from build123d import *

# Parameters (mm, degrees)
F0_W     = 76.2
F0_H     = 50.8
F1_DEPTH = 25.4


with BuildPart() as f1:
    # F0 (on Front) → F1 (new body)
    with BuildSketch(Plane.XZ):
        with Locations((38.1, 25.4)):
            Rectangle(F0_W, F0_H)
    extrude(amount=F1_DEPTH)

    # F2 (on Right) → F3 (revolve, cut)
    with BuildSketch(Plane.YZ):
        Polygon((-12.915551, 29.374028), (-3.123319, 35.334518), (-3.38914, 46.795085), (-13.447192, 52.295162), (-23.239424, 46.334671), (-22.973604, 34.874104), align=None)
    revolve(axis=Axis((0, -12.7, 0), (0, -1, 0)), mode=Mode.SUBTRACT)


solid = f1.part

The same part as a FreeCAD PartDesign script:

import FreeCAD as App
import Part
import Sketcher
Q = App.Units.Quantity

doc = App.newDocument("Part")
body = doc.addObject("PartDesign::Body", "Body")

# Sketch on XZ plane
sketch1 = body.newObject("Sketcher::SketchObject", "Sketch")
sketch1.AttachmentSupport = (doc.getObject("XZ_Plane"), [""])
sketch1.MapMode = "FlatFace"
sketch1.addGeometry([
    Part.LineSegment(App.Vector(0, 51, 0), App.Vector(0, 0, 0)),
    Part.LineSegment(App.Vector(0, 0, 0), App.Vector(76, 0, 0)),
    Part.LineSegment(App.Vector(76, 0, 0), App.Vector(76, 51, 0)),
    Part.LineSegment(App.Vector(76, 51, 0), App.Vector(0, 51, 0)),
], False)
sketch1.addConstraint([
    Sketcher.Constraint("Coincident", 0, 2, 1, 1),
    Sketcher.Constraint("Coincident", 1, 2, 2, 1),
    Sketcher.Constraint("Coincident", 2, 2, 3, 1),
    Sketcher.Constraint("Coincident", 3, 2, 0, 1),
    Sketcher.Constraint("Vertical", 0),
    Sketcher.Constraint("Horizontal", 1),
    Sketcher.Constraint("Vertical", 2),
    Sketcher.Constraint("Horizontal", 3),
    Sketcher.Constraint("Coincident", 0, 2, -1, 1),
    Sketcher.Constraint("DistanceX", 1, 1, 1, 2, Q("3 in")),
    Sketcher.Constraint("DistanceY", 0, 2, 0, 1, Q("2 in")),
])
pad1 = body.newObject("PartDesign::Pad", "Pad")
pad1.Profile = sketch1
pad1.Length = Q("1 in")

# Sketch on YZ plane
sketch2 = body.newObject("Sketcher::SketchObject", "Sketch001")
sketch2.AttachmentSupport = (doc.getObject("YZ_Plane"), [""])
sketch2.MapMode = "FlatFace"
sketch2.addGeometry([
    Part.LineSegment(App.Vector(-13, 29, 0), App.Vector(-3, 35, 0)),  # 0
    Part.LineSegment(App.Vector(-3, 35, 0), App.Vector(-3, 47, 0)),  # 1
    Part.LineSegment(App.Vector(-3, 47, 0), App.Vector(-13, 52, 0)),  # 2
    Part.LineSegment(App.Vector(-13, 52, 0), App.Vector(-23, 46, 0)),  # 3
    Part.LineSegment(App.Vector(-23, 46, 0), App.Vector(-23, 35, 0)),  # 4
    Part.LineSegment(App.Vector(-23, 35, 0), App.Vector(-13, 29, 0)),  # 5
], False)
sketch2.addConstraint([
    Sketcher.Constraint("Coincident", 0, 2, 1, 1),
    Sketcher.Constraint("Coincident", 1, 2, 2, 1),
    Sketcher.Constraint("Coincident", 2, 2, 3, 1),
    Sketcher.Constraint("Coincident", 3, 2, 4, 1),
    Sketcher.Constraint("Coincident", 4, 2, 5, 1),
    Sketcher.Constraint("Coincident", 5, 2, 0, 1),
    Sketcher.Constraint("Parallel", 0, 3),
    Sketcher.Constraint("Parallel", 1, 4),
    Sketcher.Constraint("Parallel", 2, 5),
    Sketcher.Constraint("Equal", 0, 1),
    Sketcher.Constraint("Equal", 1, 2),
    Sketcher.Constraint("Equal", 2, 3),
    Sketcher.Constraint("Distance", 0, Q("11.463649 mm")),
    Sketcher.Constraint("DistanceX", 0, 2, -1, 1, Q("3.123319 mm")),
    Sketcher.Constraint("DistanceY", -1, 1, 0, 2, Q("35.334518 mm")),
    Sketcher.Constraint("DistanceX", 1, 2, -1, 1, Q("3.38914 mm")),
    Sketcher.Constraint("DistanceX", 2, 2, -1, 1, Q("13.447192 mm")),
    Sketcher.Constraint("DistanceY", -1, 1, 3, 2, Q("46.334671 mm")),
])
groove = body.newObject("PartDesign::Groove", "Groove")
groove.Profile = sketch2
groove.ReferenceAxis = (sketch2, ["H_Axis"])
groove.Angle = 360

doc.recompute()
